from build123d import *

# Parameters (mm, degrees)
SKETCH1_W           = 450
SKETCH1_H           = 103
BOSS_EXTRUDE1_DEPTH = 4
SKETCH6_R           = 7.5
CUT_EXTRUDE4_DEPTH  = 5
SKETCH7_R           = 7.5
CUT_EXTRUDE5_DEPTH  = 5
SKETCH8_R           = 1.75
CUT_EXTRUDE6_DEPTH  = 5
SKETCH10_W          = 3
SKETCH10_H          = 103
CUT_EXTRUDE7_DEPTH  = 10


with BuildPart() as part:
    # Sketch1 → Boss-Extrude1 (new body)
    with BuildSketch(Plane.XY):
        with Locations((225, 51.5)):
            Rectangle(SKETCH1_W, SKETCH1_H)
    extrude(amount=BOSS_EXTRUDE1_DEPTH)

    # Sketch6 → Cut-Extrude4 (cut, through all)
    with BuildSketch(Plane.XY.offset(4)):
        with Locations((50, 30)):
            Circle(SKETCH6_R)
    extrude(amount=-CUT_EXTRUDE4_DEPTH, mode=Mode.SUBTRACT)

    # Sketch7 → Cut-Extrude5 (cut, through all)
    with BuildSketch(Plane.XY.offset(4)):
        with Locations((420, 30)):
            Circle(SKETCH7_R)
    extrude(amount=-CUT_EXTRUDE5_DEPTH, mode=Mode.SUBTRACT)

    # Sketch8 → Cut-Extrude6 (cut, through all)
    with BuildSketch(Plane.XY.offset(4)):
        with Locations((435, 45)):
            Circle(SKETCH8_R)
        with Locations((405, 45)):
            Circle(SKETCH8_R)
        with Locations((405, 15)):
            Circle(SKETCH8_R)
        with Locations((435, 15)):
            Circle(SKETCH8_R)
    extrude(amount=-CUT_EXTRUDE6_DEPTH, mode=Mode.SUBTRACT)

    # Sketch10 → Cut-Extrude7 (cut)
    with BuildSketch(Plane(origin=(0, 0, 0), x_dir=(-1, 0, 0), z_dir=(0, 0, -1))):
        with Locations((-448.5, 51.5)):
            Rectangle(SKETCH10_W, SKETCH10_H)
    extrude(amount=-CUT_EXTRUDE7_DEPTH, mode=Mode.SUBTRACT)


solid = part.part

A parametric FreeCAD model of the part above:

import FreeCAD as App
import Part
import Sketcher

V = App.Vector

doc = App.newDocument("Part")
params = doc.addObject("Spreadsheet::Sheet", "Params")
for row, (alias, value) in enumerate([
    ("sketch1_width", "450 mm"),
    ("sketch1_height", "103 mm"),
    ("pad1_length", "4 mm"),
    ("sketch2_diameter", "15 mm"),
    ("sketch3_diameter", "15 mm"),
    ("sketch4_diameter", "3.5 mm"),
    ("sketch5_width", "3 mm"),
    ("sketch5_height", "103 mm"),
    ("pocket4_length", "10 mm"),
], start=1):
    params.set(f"A{row}", alias)
    params.set(f"B{row}", "=" + value)
    params.setAlias(f"B{row}", alias)

body = doc.addObject("PartDesign::Body", "Body")

# Sketch on XY plane
sketch1 = body.newObject("Sketcher::SketchObject", "Sketch")
sketch1.AttachmentSupport = (doc.getObject("XY_Plane"), [""])
sketch1.MapMode = "FlatFace"
sketch1.addGeometry([
    Part.LineSegment(V(0, 103, 0), V(0, 0, 0)),
    Part.LineSegment(V(0, 0, 0), V(450, 0, 0)),
    Part.LineSegment(V(450, 0, 0), V(450, 103, 0)),
    Part.LineSegment(V(450, 103, 0), V(0, 103, 0)),
], False)
sketch1.addConstraint([
    Sketcher.Constraint("Coincident", 0, 2, 1, 1),
    Sketcher.Constraint("Coincident", 1, 2, 2, 1),
    Sketcher.Constraint("Coincident", 2, 2, 3, 1),
    Sketcher.Constraint("Coincident", 3, 2, 0, 1),
    Sketcher.Constraint("Vertical", 0),
    Sketcher.Constraint("Horizontal", 1),
    Sketcher.Constraint("Vertical", 2),
    Sketcher.Constraint("Horizontal", 3),
    Sketcher.Constraint("Coincident", 0, 2, -1, 1),
    Sketcher.Constraint("DistanceX", 1, 1, 1, 2, 450.0),
    Sketcher.Constraint("DistanceY", 0, 2, 0, 1, 103.0),
])
sketch1.setExpression("Constraints[9]", "Params.sketch1_width")
sketch1.setExpression("Constraints[10]", "Params.sketch1_height")
pad1 = body.newObject("PartDesign::Pad", "Pad")
pad1.Profile = sketch1
pad1.setExpression("Length", "Params.pad1_length")

# Sketch on XY plane
sketch2 = body.newObject("Sketcher::SketchObject", "Sketch001")
sketch2.AttachmentSupport = (doc.getObject("XY_Plane"), [""])
sketch2.MapMode = "FlatFace"
sketch2.AttachmentOffset = App.Placement(V(0, 0, 4), App.Rotation())
sketch2.addGeometry(Part.Circle(V(50, 30, 0), V(0, 0, 1), 8), False)
sketch2.addConstraint([
    Sketcher.Constraint("Diameter", 0, 15.0),
    Sketcher.Constraint("DistanceX", -1, 1, 0, 3, 50.0),
    Sketcher.Constraint("DistanceY", -1, 1, 0, 3, 30.0),
])
sketch2.setExpression("Constraints[0]", "Params.sketch2_diameter")
pocket1 = body.newObject("PartDesign::Pocket", "Pocket")
pocket1.Profile = sketch2
pocket1.Type = "ThroughAll"

# Sketch on XY plane
sketch3 = body.newObject("Sketcher::SketchObject", "Sketch002")
sketch3.AttachmentSupport = (doc.getObject("XY_Plane"), [""])
sketch3.MapMode = "FlatFace"
sketch3.AttachmentOffset = App.Placement(V(0, 0, 4), App.Rotation())
sketch3.addGeometry(Part.Circle(V(420, 30, 0), V(0, 0, 1), 8), False)
sketch3.addConstraint([
    Sketcher.Constraint("Diameter", 0, 15.0),
    Sketcher.Constraint("DistanceX", -1, 1, 0, 3, 420.0),
    Sketcher.Constraint("DistanceY", -1, 1, 0, 3, 30.0),
])
sketch3.setExpression("Constraints[0]", "Params.sketch3_diameter")
pocket2 = body.newObject("PartDesign::Pocket", "Pocket001")
pocket2.Profile = sketch3
pocket2.Type = "ThroughAll"

# Sketch on XY plane
sketch4 = body.newObject("Sketcher::SketchObject", "Sketch003")
sketch4.AttachmentSupport = (doc.getObject("XY_Plane"), [""])
sketch4.MapMode = "FlatFace"
sketch4.AttachmentOffset = App.Placement(V(0, 0, 4), App.Rotation())
sketch4.addGeometry([
    Part.Circle(V(435, 45, 0), V(0, 0, 1), 1.8),
    Part.Circle(V(405, 45, 0), V(0, 0, 1), 1.8),
    Part.Circle(V(405, 15, 0), V(0, 0, 1), 1.8),
    Part.Circle(V(435, 15, 0), V(0, 0, 1), 1.8),
], False)
sketch4.addConstraint([
    Sketcher.Constraint("Equal", 0, 1),
    Sketcher.Constraint("Equal", 1, 2),
    Sketcher.Constraint("Equal", 2, 3),
    Sketcher.Constraint("Horizontal", 0, 3, 1, 3),
    Sketcher.Constraint("Horizontal", 2, 3, 3, 3),
    Sketcher.Constraint("Vertical", 1, 3, 2, 3),
    Sketcher.Constraint("Vertical", 0, 3, 3, 3),
    Sketcher.Constraint("Diameter", 0, 3.5),
    Sketcher.Constraint("DistanceX", -1, 1, 0, 3, 435.0),
    Sketcher.Constraint("DistanceY", -1, 1, 0, 3, 45.0),
    Sketcher.Constraint("DistanceX", -1, 1, 1, 3, 405.0),
    Sketcher.Constraint("DistanceY", -1, 1, 2, 3, 15.0),
])
sketch4.setExpression("Constraints[7]", "Params.sketch4_diameter")
pocket3 = body.newObject("PartDesign::Pocket", "Pocket002")
pocket3.Profile = sketch4
pocket3.Type = "ThroughAll"

# Sketch on XY plane
sketch5 = body.newObject("Sketcher::SketchObject", "Sketch004")
sketch5.AttachmentSupport = (doc.getObject("XY_Plane"), [""])
sketch5.MapMode = "FlatFace"
sketch5.addGeometry([
    Part.LineSegment(V(450, 103, 0), V(450, 0, 0)),
    Part.LineSegment(V(450, 0, 0), V(447, 0, 0)),
    Part.LineSegment(V(447, 0, 0), V(447, 103, 0)),
    Part.LineSegment(V(447, 103, 0), V(450, 103, 0)),
], False)
sketch5.addConstraint([
    Sketcher.Constraint("Coincident", 0, 2, 1, 1),
    Sketcher.Constraint("Coincident", 1, 2, 2, 1),
    Sketcher.Constraint("Coincident", 2, 2, 3, 1),
    Sketcher.Constraint("Coincident", 3, 2, 0, 1),
    Sketcher.Constraint("Vertical", 0),
    Sketcher.Constraint("Horizontal", 1),
    Sketcher.Constraint("Vertical", 2),
    Sketcher.Constraint("Horizontal", 3),
    Sketcher.Constraint("PointOnObject", 0, 2, -1),
    Sketcher.Constraint("DistanceX", 1, 2, 1, 1, 3.0),
    Sketcher.Constraint("DistanceY", 0, 2, 0, 1, 103.0),
    Sketcher.Constraint("DistanceX", -1, 1, 0, 2, 450.0),
])
sketch5.setExpression("Constraints[9]", "Params.sketch5_width")
sketch5.setExpression("Constraints[10]", "Params.sketch5_height")
pocket4 = body.newObject("PartDesign::Pocket", "Pocket003")
pocket4.Profile = sketch5
pocket4.setExpression("Length", "Params.pocket4_length")
pocket4.Reversed = True

doc.recompute()
